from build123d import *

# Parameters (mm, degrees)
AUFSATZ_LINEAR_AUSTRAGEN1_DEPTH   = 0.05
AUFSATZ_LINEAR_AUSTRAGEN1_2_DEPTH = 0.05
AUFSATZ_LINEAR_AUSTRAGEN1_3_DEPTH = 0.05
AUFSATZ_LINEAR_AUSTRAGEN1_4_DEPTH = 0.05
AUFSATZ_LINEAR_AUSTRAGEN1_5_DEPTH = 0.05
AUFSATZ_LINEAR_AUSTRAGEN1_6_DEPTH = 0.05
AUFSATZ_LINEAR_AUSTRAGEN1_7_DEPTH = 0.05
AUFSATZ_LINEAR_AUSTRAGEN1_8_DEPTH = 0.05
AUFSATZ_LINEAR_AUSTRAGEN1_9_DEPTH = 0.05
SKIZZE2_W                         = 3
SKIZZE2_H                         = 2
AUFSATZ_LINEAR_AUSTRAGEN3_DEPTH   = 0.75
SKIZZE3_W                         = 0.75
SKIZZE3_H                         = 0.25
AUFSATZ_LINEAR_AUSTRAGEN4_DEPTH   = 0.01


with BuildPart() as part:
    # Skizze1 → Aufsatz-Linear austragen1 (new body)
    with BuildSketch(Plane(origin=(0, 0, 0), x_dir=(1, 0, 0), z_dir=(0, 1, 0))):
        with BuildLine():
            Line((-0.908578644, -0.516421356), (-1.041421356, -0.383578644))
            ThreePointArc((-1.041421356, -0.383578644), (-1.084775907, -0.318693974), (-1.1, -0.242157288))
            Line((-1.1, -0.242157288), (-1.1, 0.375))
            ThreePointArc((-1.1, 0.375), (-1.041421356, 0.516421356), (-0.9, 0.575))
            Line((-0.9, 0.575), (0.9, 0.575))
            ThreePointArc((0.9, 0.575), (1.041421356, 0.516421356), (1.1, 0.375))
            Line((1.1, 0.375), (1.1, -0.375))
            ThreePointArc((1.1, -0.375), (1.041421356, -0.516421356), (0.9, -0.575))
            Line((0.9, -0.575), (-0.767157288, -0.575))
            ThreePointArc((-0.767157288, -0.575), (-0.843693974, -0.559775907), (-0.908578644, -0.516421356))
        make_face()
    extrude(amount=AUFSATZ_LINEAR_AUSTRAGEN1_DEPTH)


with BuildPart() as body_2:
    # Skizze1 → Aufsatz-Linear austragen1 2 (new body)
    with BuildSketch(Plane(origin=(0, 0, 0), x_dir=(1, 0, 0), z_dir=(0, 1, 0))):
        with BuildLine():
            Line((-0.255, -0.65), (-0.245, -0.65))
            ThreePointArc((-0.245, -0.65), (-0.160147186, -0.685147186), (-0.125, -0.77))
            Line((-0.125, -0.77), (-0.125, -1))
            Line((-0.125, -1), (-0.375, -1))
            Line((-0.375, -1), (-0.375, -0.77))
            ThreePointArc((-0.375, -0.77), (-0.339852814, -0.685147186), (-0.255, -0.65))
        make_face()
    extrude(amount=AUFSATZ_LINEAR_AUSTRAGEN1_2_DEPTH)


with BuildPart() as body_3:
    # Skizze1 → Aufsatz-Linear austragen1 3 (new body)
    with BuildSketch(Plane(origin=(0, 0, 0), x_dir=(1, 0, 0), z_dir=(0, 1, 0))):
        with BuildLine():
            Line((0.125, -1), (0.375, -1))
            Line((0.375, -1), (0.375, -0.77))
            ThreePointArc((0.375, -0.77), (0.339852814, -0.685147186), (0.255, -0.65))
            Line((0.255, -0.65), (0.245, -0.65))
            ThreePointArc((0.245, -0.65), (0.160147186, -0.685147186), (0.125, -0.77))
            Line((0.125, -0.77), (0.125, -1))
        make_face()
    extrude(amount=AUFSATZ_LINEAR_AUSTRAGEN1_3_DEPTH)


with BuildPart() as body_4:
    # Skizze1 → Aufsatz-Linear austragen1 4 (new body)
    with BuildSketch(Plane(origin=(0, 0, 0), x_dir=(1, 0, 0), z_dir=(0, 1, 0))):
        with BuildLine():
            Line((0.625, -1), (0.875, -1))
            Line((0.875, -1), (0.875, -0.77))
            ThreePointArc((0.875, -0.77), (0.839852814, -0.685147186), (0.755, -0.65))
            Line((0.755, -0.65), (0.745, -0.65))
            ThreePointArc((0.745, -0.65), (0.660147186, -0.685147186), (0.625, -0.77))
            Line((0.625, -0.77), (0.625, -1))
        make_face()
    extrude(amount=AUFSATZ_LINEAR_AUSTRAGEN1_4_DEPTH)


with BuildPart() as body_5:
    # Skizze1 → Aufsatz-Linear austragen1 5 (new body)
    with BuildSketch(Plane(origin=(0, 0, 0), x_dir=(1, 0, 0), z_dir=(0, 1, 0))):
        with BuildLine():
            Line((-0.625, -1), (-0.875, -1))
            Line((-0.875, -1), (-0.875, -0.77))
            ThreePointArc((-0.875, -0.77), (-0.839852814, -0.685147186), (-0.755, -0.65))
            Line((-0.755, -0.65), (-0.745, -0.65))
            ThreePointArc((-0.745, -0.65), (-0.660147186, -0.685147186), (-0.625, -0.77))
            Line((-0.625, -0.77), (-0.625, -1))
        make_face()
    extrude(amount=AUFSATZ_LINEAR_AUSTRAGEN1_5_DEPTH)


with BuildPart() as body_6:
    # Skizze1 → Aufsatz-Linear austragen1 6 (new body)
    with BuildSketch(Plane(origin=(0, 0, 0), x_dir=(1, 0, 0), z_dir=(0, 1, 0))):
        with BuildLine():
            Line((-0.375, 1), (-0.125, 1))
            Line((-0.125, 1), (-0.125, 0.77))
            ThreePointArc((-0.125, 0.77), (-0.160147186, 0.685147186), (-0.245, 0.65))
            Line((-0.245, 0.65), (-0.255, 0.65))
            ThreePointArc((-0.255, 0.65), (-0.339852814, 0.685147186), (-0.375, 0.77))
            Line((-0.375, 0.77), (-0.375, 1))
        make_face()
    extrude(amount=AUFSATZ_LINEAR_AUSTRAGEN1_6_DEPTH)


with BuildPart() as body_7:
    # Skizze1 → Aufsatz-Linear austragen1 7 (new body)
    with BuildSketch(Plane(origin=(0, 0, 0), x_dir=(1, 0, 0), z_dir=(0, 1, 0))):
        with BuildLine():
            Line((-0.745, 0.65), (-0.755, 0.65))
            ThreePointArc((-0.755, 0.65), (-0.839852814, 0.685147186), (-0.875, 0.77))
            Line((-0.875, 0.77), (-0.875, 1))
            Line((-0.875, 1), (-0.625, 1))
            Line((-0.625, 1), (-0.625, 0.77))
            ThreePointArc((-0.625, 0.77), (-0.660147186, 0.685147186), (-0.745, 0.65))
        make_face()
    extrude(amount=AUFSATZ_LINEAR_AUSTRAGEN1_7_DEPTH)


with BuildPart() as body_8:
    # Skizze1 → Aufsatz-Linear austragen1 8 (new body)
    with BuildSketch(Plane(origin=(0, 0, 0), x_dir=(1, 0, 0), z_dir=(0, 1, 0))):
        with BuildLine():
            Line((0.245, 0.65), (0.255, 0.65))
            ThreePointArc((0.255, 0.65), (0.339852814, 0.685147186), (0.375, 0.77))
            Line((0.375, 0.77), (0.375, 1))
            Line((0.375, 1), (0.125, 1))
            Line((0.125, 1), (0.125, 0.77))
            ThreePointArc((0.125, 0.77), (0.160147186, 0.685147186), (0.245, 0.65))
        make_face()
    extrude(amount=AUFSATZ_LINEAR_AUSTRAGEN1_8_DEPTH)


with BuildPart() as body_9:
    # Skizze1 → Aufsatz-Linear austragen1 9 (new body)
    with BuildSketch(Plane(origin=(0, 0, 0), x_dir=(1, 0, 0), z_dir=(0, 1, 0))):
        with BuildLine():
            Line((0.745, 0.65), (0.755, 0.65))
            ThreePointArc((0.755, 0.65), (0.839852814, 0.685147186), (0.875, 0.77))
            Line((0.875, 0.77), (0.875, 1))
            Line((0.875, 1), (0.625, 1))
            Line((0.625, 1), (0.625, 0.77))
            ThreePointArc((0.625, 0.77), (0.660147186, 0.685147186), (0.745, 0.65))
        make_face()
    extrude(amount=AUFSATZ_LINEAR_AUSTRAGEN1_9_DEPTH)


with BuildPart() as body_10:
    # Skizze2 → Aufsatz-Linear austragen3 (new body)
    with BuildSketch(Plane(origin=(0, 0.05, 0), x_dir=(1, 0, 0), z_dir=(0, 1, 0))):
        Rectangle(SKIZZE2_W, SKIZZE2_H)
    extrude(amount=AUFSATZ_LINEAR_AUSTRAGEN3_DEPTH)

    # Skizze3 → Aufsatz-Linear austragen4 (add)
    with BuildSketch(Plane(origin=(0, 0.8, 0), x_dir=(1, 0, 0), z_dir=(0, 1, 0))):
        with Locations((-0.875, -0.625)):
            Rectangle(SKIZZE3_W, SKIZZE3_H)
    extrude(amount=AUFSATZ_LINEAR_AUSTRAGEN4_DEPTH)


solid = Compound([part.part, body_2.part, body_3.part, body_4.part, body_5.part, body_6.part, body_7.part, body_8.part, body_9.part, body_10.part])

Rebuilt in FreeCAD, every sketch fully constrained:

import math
import FreeCAD as App
import Part
import Sketcher
from FreeCAD import Vector
Q = App.Units.Quantity


def add_polygon(sketch, points):
    """Adds a closed chain of lines whose ends are joined by coincident constraints."""
    first, n = sketch.GeometryCount, len(points)
    for a, b in zip(points, points[1:] + points[:1]):
        sketch.addGeometry(Part.LineSegment(App.Vector(*a, 0), App.Vector(*b, 0)), False)
    for i in range(n):
        sketch.addConstraint(Sketcher.Constraint("Coincident", first + i, 2, first + (i + 1) % n, 1))

doc = App.newDocument("Part")
body = doc.addObject("PartDesign::Body", "Body")

# Sketch on XZ plane
sketch1 = body.newObject("Sketcher::SketchObject", "Sketch")
sketch1.AttachmentSupport = (doc.getObject("XZ_Plane"), [""])
sketch1.MapMode = "FlatFace"
sketch1.addGeometry([
    Part.LineSegment(Vector(-1.041421, 0.383579, 0), Vector(-0.908579, 0.516421, 0)),  # 0
    Part.ArcOfCircle(Part.Circle(Vector(-0.767157, 0.375, 0), Vector(0, 0, 1), 0.2), math.radians(89.999999), math.radians(135.000001)),  # 1
    Part.LineSegment(Vector(-0.767157, 0.575, 0), Vector(0.9, 0.575, 0)),  # 2
    Part.ArcOfCircle(Part.Circle(Vector(0.9, 0.375, 0), Vector(0, 0, 1), 0.2), math.radians(0), math.radians(90)),  # 3
    Part.LineSegment(Vector(1.1, 0.375, 0), Vector(1.1, -0.375, 0)),  # 4
    Part.ArcOfCircle(Part.Circle(Vector(0.9, -0.375, 0), Vector(0, 0, 1), 0.2), math.radians(-90), math.radians(0)),  # 5
    Part.LineSegment(Vector(0.9, -0.575, 0), Vector(-0.9, -0.575, 0)),  # 6
    Part.ArcOfCircle(Part.Circle(Vector(-0.9, -0.375, 0), Vector(0, 0, 1), 0.2), math.radians(-180), math.radians(-90)),  # 7
    Part.LineSegment(Vector(-1.1, -0.375, 0), Vector(-1.1, 0.242157, 0)),  # 8
    Part.ArcOfCircle(Part.Circle(Vector(-0.9, 0.242157, 0), Vector(0, 0, 1), 0.2), math.radians(134.999999), math.radians(180.000001)),  # 9
], False)
sketch1.addConstraint([
    Sketcher.Constraint("Tangent", 0, 2, 1, 2),
    Sketcher.Constraint("Tangent", 1, 1, 2, 1),
    Sketcher.Constraint("Tangent", 2, 2, 3, 2),
    Sketcher.Constraint("Tangent", 3, 1, 4, 1),
    Sketcher.Constraint("Tangent", 4, 2, 5, 2),
    Sketcher.Constraint("Tangent", 5, 1, 6, 1),
    Sketcher.Constraint("Tangent", 6, 2, 7, 2),
    Sketcher.Constraint("Tangent", 7, 1, 8, 1),
    Sketcher.Constraint("Tangent", 8, 2, 9, 2),
    Sketcher.Constraint("Tangent", 9, 1, 0, 1),
    Sketcher.Constraint("Horizontal", 2),
    Sketcher.Constraint("Vertical", 4),
    Sketcher.Constraint("Horizontal", 6),
    Sketcher.Constraint("Vertical", 8),
    Sketcher.Constraint("Equal", 1, 3),
    Sketcher.Constraint("Equal", 3, 5),
    Sketcher.Constraint("Equal", 5, 7),
    Sketcher.Constraint("Equal", 7, 9),
    Sketcher.Constraint("Symmetric", 3, 3, 7, 3, -1, 1),
    Sketcher.Constraint("Radius", 1, 0.2),
    Sketcher.Constraint("Angle", 0, Q("45 deg")),
    Sketcher.Constraint("DistanceX", 6, 2, 6, 1, 1.8),
    Sketcher.Constraint("DistanceY", 4, 2, 4, 1, 0.75),
    Sketcher.Constraint("DistanceX", 2, 1, 2, 2, 1.667157),
])
pad1 = body.newObject("PartDesign::Pad", "Pad")
pad1.Profile = sketch1
pad1.Length = 0.05
pad1.Reversed = True
body2 = doc.addObject("PartDesign::Body", "Body001")

# Sketch on XZ plane
sketch2 = body2.newObject("Sketcher::SketchObject", "Sketch001")
sketch2.AttachmentSupport = (doc.getObject("XZ_Plane001"), [""])
sketch2.MapMode = "FlatFace"
sketch2.addGeometry([
    Part.LineSegment(Vector(-0.245, 0.65, 0), Vector(-0.255, 0.65, 0)),  # 0
    Part.ArcOfCircle(Part.Circle(Vector(-0.255, 0.77, 0), Vector(0, 0, 1), 0.12), math.radians(180), math.radians(270)),  # 1
    Part.LineSegment(Vector(-0.375, 0.77, 0), Vector(-0.375, 1, 0)),  # 2
    Part.LineSegment(Vector(-0.375, 1, 0), Vector(-0.125, 1, 0)),  # 3
    Part.LineSegment(Vector(-0.125, 1, 0), Vector(-0.125, 0.77, 0)),  # 4
    Part.ArcOfCircle(Part.Circle(Vector(-0.245, 0.77, 0), Vector(0, 0, 1), 0.12), math.radians(-90), math.radians(0)),  # 5
], False)
sketch2.addConstraint([
    Sketcher.Constraint("Tangent", 0, 2, 1, 2),
    Sketcher.Constraint("Tangent", 1, 1, 2, 1),
    Sketcher.Constraint("Coincident", 2, 2, 3, 1),
    Sketcher.Constraint("Coincident", 3, 2, 4, 1),
    Sketcher.Constraint("Tangent", 4, 2, 5, 2),
    Sketcher.Constraint("Tangent", 5, 1, 0, 1),
    Sketcher.Constraint("Horizontal", 0),
    Sketcher.Constraint("Vertical", 2),
    Sketcher.Constraint("Horizontal", 3),
    Sketcher.Constraint("Vertical", 4),
    Sketcher.Constraint("Equal", 1, 5),
    Sketcher.Constraint("Radius", 1, 0.12),
    Sketcher.Constraint("DistanceY", -1, 1, 2, 2, 1.0),
    Sketcher.Constraint("DistanceX", 0, 2, 0, 1, 0.01),
    Sketcher.Constraint("DistanceY", 2, 1, 2, 2, 0.23),
    Sketcher.Constraint("DistanceX", 1, 3, -1, 1, 0.255),
])
pad2 = body2.newObject("PartDesign::Pad", "Pad001")
pad2.Profile = sketch2
pad2.Length = 0.05
pad2.Reversed = True
body3 = doc.addObject("PartDesign::Body", "Body002")

# Sketch on XZ plane
sketch3 = body3.newObject("Sketcher::SketchObject", "Sketch002")
sketch3.AttachmentSupport = (doc.getObject("XZ_Plane002"), [""])
sketch3.MapMode = "FlatFace"
sketch3.addGeometry([
    Part.LineSegment(Vector(0.125, 1, 0), Vector(0.375, 1, 0)),  # 0
    Part.LineSegment(Vector(0.375, 1, 0), Vector(0.375, 0.77, 0)),  # 1
    Part.ArcOfCircle(Part.Circle(Vector(0.255, 0.77, 0), Vector(0, 0, 1), 0.12), math.radians(-90), math.radians(0)),  # 2
    Part.LineSegment(Vector(0.255, 0.65, 0), Vector(0.245, 0.65, 0)),  # 3
    Part.ArcOfCircle(Part.Circle(Vector(0.245, 0.77, 0), Vector(0, 0, 1), 0.12), math.radians(180), math.radians(270)),  # 4
    Part.LineSegment(Vector(0.125, 0.77, 0), Vector(0.125, 1, 0)),  # 5
], False)
sketch3.addConstraint([
    Sketcher.Constraint("Coincident", 0, 2, 1, 1),
    Sketcher.Constraint("Tangent", 1, 2, 2, 2),
    Sketcher.Constraint("Tangent", 2, 1, 3, 1),
    Sketcher.Constraint("Tangent", 3, 2, 4, 2),
    Sketcher.Constraint("Tangent", 4, 1, 5, 1),
    Sketcher.Constraint("Coincident", 5, 2, 0, 1),
    Sketcher.Constraint("Horizontal", 0),
    Sketcher.Constraint("Vertical", 1),
    Sketcher.Constraint("Horizontal", 3),
    Sketcher.Constraint("Vertical", 5),
    Sketcher.Constraint("Equal", 2, 4),
    Sketcher.Constraint("Radius", 2, 0.12),
    Sketcher.Constraint("DistanceY", -1, 1, 0, 2, 1.0),
    Sketcher.Constraint("DistanceX", 0, 1, 0, 2, 0.25),
    Sketcher.Constraint("DistanceY", 1, 2, 1, 1, 0.23),
    Sketcher.Constraint("DistanceX", -1, 1, 2, 3, 0.255),
])
pad3 = body3.newObject("PartDesign::Pad", "Pad002")
pad3.Profile = sketch3
pad3.Length = 0.05
pad3.Reversed = True
body4 = doc.addObject("PartDesign::Body", "Body003")

# Sketch on XZ plane
sketch4 = body4.newObject("Sketcher::SketchObject", "Sketch003")
sketch4.AttachmentSupport = (doc.getObject("XZ_Plane003"), [""])
sketch4.MapMode = "FlatFace"
sketch4.addGeometry([
    Part.LineSegment(Vector(0.625, 1, 0), Vector(0.875, 1, 0)),  # 0
    Part.LineSegment(Vector(0.875, 1, 0), Vector(0.875, 0.77, 0)),  # 1
    Part.ArcOfCircle(Part.Circle(Vector(0.755, 0.77, 0), Vector(0, 0, 1), 0.12), math.radians(-90), math.radians(0)),  # 2
    Part.LineSegment(Vector(0.755, 0.65, 0), Vector(0.745, 0.65, 0)),  # 3
    Part.ArcOfCircle(Part.Circle(Vector(0.745, 0.77, 0), Vector(0, 0, 1), 0.12), math.radians(180), math.radians(270)),  # 4
    Part.LineSegment(Vector(0.625, 0.77, 0), Vector(0.625, 1, 0)),  # 5
], False)
sketch4.addConstraint([
    Sketcher.Constraint("Coincident", 0, 2, 1, 1),
    Sketcher.Constraint("Tangent", 1, 2, 2, 2),
    Sketcher.Constraint("Tangent", 2, 1, 3, 1),
    Sketcher.Constraint("Tangent", 3, 2, 4, 2),
    Sketcher.Constraint("Tangent", 4, 1, 5, 1),
    Sketcher.Constraint("Coincident", 5, 2, 0, 1),
    Sketcher.Constraint("Horizontal", 0),
    Sketcher.Constraint("Vertical", 1),
    Sketcher.Constraint("Horizontal", 3),
    Sketcher.Constraint("Vertical", 5),
    Sketcher.Constraint("Equal", 2, 4),
    Sketcher.Constraint("Radius", 2, 0.12),
    Sketcher.Constraint("DistanceY", -1, 1, 0, 2, 1.0),
    Sketcher.Constraint("DistanceX", 0, 1, 0, 2, 0.25),
    Sketcher.Constraint("DistanceY", 1, 2, 1, 1, 0.23),
    Sketcher.Constraint("DistanceX", -1, 1, 2, 3, 0.755),
])
pad4 = body4.newObject("PartDesign::Pad", "Pad003")
pad4.Profile = sketch4
pad4.Length = 0.05
pad4.Reversed = True
body5 = doc.addObject("PartDesign::Body", "Body004")

# Sketch on XZ plane
sketch5 = body5.newObject("Sketcher::SketchObject", "Sketch004")
sketch5.AttachmentSupport = (doc.getObject("XZ_Plane004"), [""])
sketch5.MapMode = "FlatFace"
sketch5.addGeometry([
    Part.LineSegment(Vector(-0.875, 1, 0), Vector(-0.625, 1, 0)),  # 0
    Part.LineSegment(Vector(-0.625, 1, 0), Vector(-0.625, 0.77, 0)),  # 1
    Part.ArcOfCircle(Part.Circle(Vector(-0.745, 0.77, 0), Vector(0, 0, 1), 0.12), math.radians(-90), math.radians(0)),  # 2
    Part.LineSegment(Vector(-0.745, 0.65, 0), Vector(-0.755, 0.65, 0)),  # 3
    Part.ArcOfCircle(Part.Circle(Vector(-0.755, 0.77, 0), Vector(0, 0, 1), 0.12), math.radians(180), math.radians(270)),  # 4
    Part.LineSegment(Vector(-0.875, 0.77, 0), Vector(-0.875, 1, 0)),  # 5
], False)
sketch5.addConstraint([
    Sketcher.Constraint("Coincident", 0, 2, 1, 1),
    Sketcher.Constraint("Tangent", 1, 2, 2, 2),
    Sketcher.Constraint("Tangent", 2, 1, 3, 1),
    Sketcher.Constraint("Tangent", 3, 2, 4, 2),
    Sketcher.Constraint("Tangent", 4, 1, 5, 1),
    Sketcher.Constraint("Coincident", 5, 2, 0, 1),
    Sketcher.Constraint("Horizontal", 0),
    Sketcher.Constraint("Vertical", 1),
    Sketcher.Constraint("Horizontal", 3),
    Sketcher.Constraint("Vertical", 5),
    Sketcher.Constraint("Equal", 2, 4),
    Sketcher.Constraint("Radius", 2, 0.12),
    Sketcher.Constraint("DistanceY", -1, 1, 0, 2, 1.0),
    Sketcher.Constraint("DistanceX", 0, 1, 0, 2, 0.25),
    Sketcher.Constraint("DistanceY", 1, 2, 1, 1, 0.23),
    Sketcher.Constraint("DistanceX", 2, 3, -1, 1, 0.745),
])
pad5 = body5.newObject("PartDesign::Pad", "Pad004")
pad5.Profile = sketch5
pad5.Length = 0.05
pad5.Reversed = True
body6 = doc.addObject("PartDesign::Body", "Body005")

# Sketch on XZ plane
sketch6 = body6.newObject("Sketcher::SketchObject", "Sketch005")
sketch6.AttachmentSupport = (doc.getObject("XZ_Plane005"), [""])
sketch6.MapMode = "FlatFace"
sketch6.addGeometry([
    Part.LineSegment(Vector(-0.125, -1, 0), Vector(-0.375, -1, 0)),  # 0
    Part.LineSegment(Vector(-0.375, -1, 0), Vector(-0.375, -0.77, 0)),  # 1
    Part.ArcOfCircle(Part.Circle(Vector(-0.255, -0.77, 0), Vector(0, 0, 1), 0.12), math.radians(90), math.radians(180)),  # 2
    Part.LineSegment(Vector(-0.255, -0.65, 0), Vector(-0.245, -0.65, 0)),  # 3
    Part.ArcOfCircle(Part.Circle(Vector(-0.245, -0.77, 0), Vector(0, 0, 1), 0.12), math.radians(0), math.radians(90)),  # 4
    Part.LineSegment(Vector(-0.125, -0.77, 0), Vector(-0.125, -1, 0)),  # 5
], False)
sketch6.addConstraint([
    Sketcher.Constraint("Coincident", 0, 2, 1, 1),
    Sketcher.Constraint("Tangent", 1, 2, 2, 2),
    Sketcher.Constraint("Tangent", 2, 1, 3, 1),
    Sketcher.Constraint("Tangent", 3, 2, 4, 2),
    Sketcher.Constraint("Tangent", 4, 1, 5, 1),
    Sketcher.Constraint("Coincident", 5, 2, 0, 1),
    Sketcher.Constraint("Horizontal", 0),
    Sketcher.Constraint("Vertical", 1),
    Sketcher.Constraint("Horizontal", 3),
    Sketcher.Constraint("Vertical", 5),
    Sketcher.Constraint("Equal", 2, 4),
    Sketcher.Constraint("Radius", 2, 0.12),
    Sketcher.Constraint("DistanceY", 0, 2, -1, 1, 1.0),
    Sketcher.Constraint("DistanceX", 0, 2, 0, 1, 0.25),
    Sketcher.Constraint("DistanceY", 1, 1, 1, 2, 0.23),
    Sketcher.Constraint("DistanceX", 2, 3, -1, 1, 0.255),
])
pad6 = body6.newObject("PartDesign::Pad", "Pad005")
pad6.Profile = sketch6
pad6.Length = 0.05
pad6.Reversed = True
body7 = doc.addObject("PartDesign::Body", "Body006")

# Sketch on XZ plane
sketch7 = body7.newObject("Sketcher::SketchObject", "Sketch006")
sketch7.AttachmentSupport = (doc.getObject("XZ_Plane006"), [""])
sketch7.MapMode = "FlatFace"
sketch7.addGeometry([
    Part.LineSegment(Vector(-0.755, -0.65, 0), Vector(-0.745, -0.65, 0)),  # 0
    Part.ArcOfCircle(Part.Circle(Vector(-0.745, -0.77, 0), Vector(0, 0, 1), 0.12), math.radians(0), math.radians(90)),  # 1
    Part.LineSegment(Vector(-0.625, -0.77, 0), Vector(-0.625, -1, 0)),  # 2
    Part.LineSegment(Vector(-0.625, -1, 0), Vector(-0.875, -1, 0)),  # 3
    Part.LineSegment(Vector(-0.875, -1, 0), Vector(-0.875, -0.77, 0)),  # 4
    Part.ArcOfCircle(Part.Circle(Vector(-0.755, -0.77, 0), Vector(0, 0, 1), 0.12), math.radians(90), math.radians(180)),  # 5
], False)
sketch7.addConstraint([
    Sketcher.Constraint("Tangent", 0, 2, 1, 2),
    Sketcher.Constraint("Tangent", 1, 1, 2, 1),
    Sketcher.Constraint("Coincident", 2, 2, 3, 1),
    Sketcher.Constraint("Coincident", 3, 2, 4, 1),
    Sketcher.Constraint("Tangent", 4, 2, 5, 2),
    Sketcher.Constraint("Tangent", 5, 1, 0, 1),
    Sketcher.Constraint("Horizontal", 0),
    Sketcher.Constraint("Vertical", 2),
    Sketcher.Constraint("Horizontal", 3),
    Sketcher.Constraint("Vertical", 4),
    Sketcher.Constraint("Equal", 1, 5),
    Sketcher.Constraint("Radius", 1, 0.12),
    Sketcher.Constraint("DistanceY", 2, 2, -1, 1, 1.0),
    Sketcher.Constraint("DistanceX", 0, 1, 0, 2, 0.01),
    Sketcher.Constraint("DistanceY", 2, 2, 2, 1, 0.23),
    Sketcher.Constraint("DistanceX", 1, 3, -1, 1, 0.745),
])
pad7 = body7.newObject("PartDesign::Pad", "Pad006")
pad7.Profile = sketch7
pad7.Length = 0.05
pad7.Reversed = True
body8 = doc.addObject("PartDesign::Body", "Body007")

# Sketch on XZ plane
sketch8 = body8.newObject("Sketcher::SketchObject", "Sketch007")
sketch8.AttachmentSupport = (doc.getObject("XZ_Plane007"), [""])
sketch8.MapMode = "FlatFace"
sketch8.addGeometry([
    Part.LineSegment(Vector(0.245, -0.65, 0), Vector(0.255, -0.65, 0)),  # 0
    Part.ArcOfCircle(Part.Circle(Vector(0.255, -0.77, 0), Vector(0, 0, 1), 0.12), math.radians(0), math.radians(90)),  # 1
    Part.LineSegment(Vector(0.375, -0.77, 0), Vector(0.375, -1, 0)),  # 2
    Part.LineSegment(Vector(0.375, -1, 0), Vector(0.125, -1, 0)),  # 3
    Part.LineSegment(Vector(0.125, -1, 0), Vector(0.125, -0.77, 0)),  # 4
    Part.ArcOfCircle(Part.Circle(Vector(0.245, -0.77, 0), Vector(0, 0, 1), 0.12), math.radians(90), math.radians(180)),  # 5
], False)
sketch8.addConstraint([
    Sketcher.Constraint("Tangent", 0, 2, 1, 2),
    Sketcher.Constraint("Tangent", 1, 1, 2, 1),
    Sketcher.Constraint("Coincident", 2, 2, 3, 1),
    Sketcher.Constraint("Coincident", 3, 2, 4, 1),
    Sketcher.Constraint("Tangent", 4, 2, 5, 2),
    Sketcher.Constraint("Tangent", 5, 1, 0, 1),
    Sketcher.Constraint("Horizontal", 0),
    Sketcher.Constraint("Vertical", 2),
    Sketcher.Constraint("Horizontal", 3),
    Sketcher.Constraint("Vertical", 4),
    Sketcher.Constraint("Equal", 1, 5),
    Sketcher.Constraint("Radius", 1, 0.12),
    Sketcher.Constraint("DistanceY", 2, 2, -1, 1, 1.0),
    Sketcher.Constraint("DistanceX", 0, 1, 0, 2, 0.01),
    Sketcher.Constraint("DistanceY", 2, 2, 2, 1, 0.23),
    Sketcher.Constraint("DistanceX", -1, 1, 1, 3, 0.255),
])
pad8 = body8.newObject("PartDesign::Pad", "Pad007")
pad8.Profile = sketch8
pad8.Length = 0.05
pad8.Reversed = True
body9 = doc.addObject("PartDesign::Body", "Body008")

# Sketch on XZ plane
sketch9 = body9.newObject("Sketcher::SketchObject", "Sketch008")
sketch9.AttachmentSupport = (doc.getObject("XZ_Plane008"), [""])
sketch9.MapMode = "FlatFace"
sketch9.addGeometry([
    Part.LineSegment(Vector(0.745, -0.65, 0), Vector(0.755, -0.65, 0)),  # 0
    Part.ArcOfCircle(Part.Circle(Vector(0.755, -0.77, 0), Vector(0, 0, 1), 0.12), math.radians(0), math.radians(90)),  # 1
    Part.LineSegment(Vector(0.875, -0.77, 0), Vector(0.875, -1, 0)),  # 2
    Part.LineSegment(Vector(0.875, -1, 0), Vector(0.625, -1, 0)),  # 3
    Part.LineSegment(Vector(0.625, -1, 0), Vector(0.625, -0.77, 0)),  # 4
    Part.ArcOfCircle(Part.Circle(Vector(0.745, -0.77, 0), Vector(0, 0, 1), 0.12), math.radians(90), math.radians(180)),  # 5
], False)
sketch9.addConstraint([
    Sketcher.Constraint("Tangent", 0, 2, 1, 2),
    Sketcher.Constraint("Tangent", 1, 1, 2, 1),
    Sketcher.Constraint("Coincident", 2, 2, 3, 1),
    Sketcher.Constraint("Coincident", 3, 2, 4, 1),
    Sketcher.Constraint("Tangent", 4, 2, 5, 2),
    Sketcher.Constraint("Tangent", 5, 1, 0, 1),
    Sketcher.Constraint("Horizontal", 0),
    Sketcher.Constraint("Vertical", 2),
    Sketcher.Constraint("Horizontal", 3),
    Sketcher.Constraint("Vertical", 4),
    Sketcher.Constraint("Equal", 1, 5),
    Sketcher.Constraint("Radius", 1, 0.12),
    Sketcher.Constraint("DistanceY", 2, 2, -1, 1, 1.0),
    Sketcher.Constraint("DistanceX", 0, 1, 0, 2, 0.01),
    Sketcher.Constraint("DistanceY", 2, 2, 2, 1, 0.23),
    Sketcher.Constraint("DistanceX", -1, 1, 1, 3, 0.755),
])
pad9 = body9.newObject("PartDesign::Pad", "Pad008")
pad9.Profile = sketch9
pad9.Length = 0.05
pad9.Reversed = True
body10 = doc.addObject("PartDesign::Body", "Body009")

# Sketch on XZ plane
sketch10 = body10.newObject("Sketcher::SketchObject", "Sketch009")
sketch10.AttachmentSupport = (doc.getObject("XZ_Plane009"), [""])
sketch10.MapMode = "FlatFace"
sketch10.AttachmentOffset = App.Placement(Vector(0, 0, -0.05), App.Rotation())
add_polygon(sketch10, [(-1.5, -1), (-1.5, 1), (1.5, 1), (1.5, -1)])  # lines 0-3
sketch10.addConstraint([
    Sketcher.Constraint("Vertical", 0),
    Sketcher.Constraint("Horizontal", 1),
    Sketcher.Constraint("Vertical", 2),
    Sketcher.Constraint("Horizontal", 3),
    Sketcher.Constraint("Symmetric", 0, 2, 2, 2, -1, 1),
    Sketcher.Constraint("DistanceX", 1, 1, 1, 2, 3.0),
    Sketcher.Constraint("DistanceY", 0, 1, 0, 2, 2.0),
])
pad10 = body10.newObject("PartDesign::Pad", "Pad009")
pad10.Profile = sketch10
pad10.Length = 0.75
pad10.Reversed = True

# Sketch on XZ plane
sketch11 = body10.newObject("Sketcher::SketchObject", "Sketch010")
sketch11.AttachmentSupport = (doc.getObject("XZ_Plane009"), [""])
sketch11.MapMode = "FlatFace"
sketch11.AttachmentOffset = App.Placement(Vector(0, 0, -0.8), App.Rotation())
add_polygon(sketch11, [(-1.25, 0.5), (-1.25, 0.75), (-0.5, 0.75), (-0.5, 0.5)])  # lines 0-3
sketch11.addConstraint([
    Sketcher.Constraint("Vertical", 0),
    Sketcher.Constraint("Horizontal", 1),
    Sketcher.Constraint("Vertical", 2),
    Sketcher.Constraint("Horizontal", 3),
    Sketcher.Constraint("DistanceX", 1, 1, 1, 2, 0.75),
    Sketcher.Constraint("DistanceY", 0, 1, 0, 2, 0.25),
    Sketcher.Constraint("DistanceX", 1, 2, -1, 1, 0.5),
    Sketcher.Constraint("DistanceY", -1, 1, 2, 2, 0.5),
])
pad11 = body10.newObject("PartDesign::Pad", "Pad010")
pad11.Profile = sketch11
pad11.Length = 0.01
pad11.Reversed = True

doc.recompute()
